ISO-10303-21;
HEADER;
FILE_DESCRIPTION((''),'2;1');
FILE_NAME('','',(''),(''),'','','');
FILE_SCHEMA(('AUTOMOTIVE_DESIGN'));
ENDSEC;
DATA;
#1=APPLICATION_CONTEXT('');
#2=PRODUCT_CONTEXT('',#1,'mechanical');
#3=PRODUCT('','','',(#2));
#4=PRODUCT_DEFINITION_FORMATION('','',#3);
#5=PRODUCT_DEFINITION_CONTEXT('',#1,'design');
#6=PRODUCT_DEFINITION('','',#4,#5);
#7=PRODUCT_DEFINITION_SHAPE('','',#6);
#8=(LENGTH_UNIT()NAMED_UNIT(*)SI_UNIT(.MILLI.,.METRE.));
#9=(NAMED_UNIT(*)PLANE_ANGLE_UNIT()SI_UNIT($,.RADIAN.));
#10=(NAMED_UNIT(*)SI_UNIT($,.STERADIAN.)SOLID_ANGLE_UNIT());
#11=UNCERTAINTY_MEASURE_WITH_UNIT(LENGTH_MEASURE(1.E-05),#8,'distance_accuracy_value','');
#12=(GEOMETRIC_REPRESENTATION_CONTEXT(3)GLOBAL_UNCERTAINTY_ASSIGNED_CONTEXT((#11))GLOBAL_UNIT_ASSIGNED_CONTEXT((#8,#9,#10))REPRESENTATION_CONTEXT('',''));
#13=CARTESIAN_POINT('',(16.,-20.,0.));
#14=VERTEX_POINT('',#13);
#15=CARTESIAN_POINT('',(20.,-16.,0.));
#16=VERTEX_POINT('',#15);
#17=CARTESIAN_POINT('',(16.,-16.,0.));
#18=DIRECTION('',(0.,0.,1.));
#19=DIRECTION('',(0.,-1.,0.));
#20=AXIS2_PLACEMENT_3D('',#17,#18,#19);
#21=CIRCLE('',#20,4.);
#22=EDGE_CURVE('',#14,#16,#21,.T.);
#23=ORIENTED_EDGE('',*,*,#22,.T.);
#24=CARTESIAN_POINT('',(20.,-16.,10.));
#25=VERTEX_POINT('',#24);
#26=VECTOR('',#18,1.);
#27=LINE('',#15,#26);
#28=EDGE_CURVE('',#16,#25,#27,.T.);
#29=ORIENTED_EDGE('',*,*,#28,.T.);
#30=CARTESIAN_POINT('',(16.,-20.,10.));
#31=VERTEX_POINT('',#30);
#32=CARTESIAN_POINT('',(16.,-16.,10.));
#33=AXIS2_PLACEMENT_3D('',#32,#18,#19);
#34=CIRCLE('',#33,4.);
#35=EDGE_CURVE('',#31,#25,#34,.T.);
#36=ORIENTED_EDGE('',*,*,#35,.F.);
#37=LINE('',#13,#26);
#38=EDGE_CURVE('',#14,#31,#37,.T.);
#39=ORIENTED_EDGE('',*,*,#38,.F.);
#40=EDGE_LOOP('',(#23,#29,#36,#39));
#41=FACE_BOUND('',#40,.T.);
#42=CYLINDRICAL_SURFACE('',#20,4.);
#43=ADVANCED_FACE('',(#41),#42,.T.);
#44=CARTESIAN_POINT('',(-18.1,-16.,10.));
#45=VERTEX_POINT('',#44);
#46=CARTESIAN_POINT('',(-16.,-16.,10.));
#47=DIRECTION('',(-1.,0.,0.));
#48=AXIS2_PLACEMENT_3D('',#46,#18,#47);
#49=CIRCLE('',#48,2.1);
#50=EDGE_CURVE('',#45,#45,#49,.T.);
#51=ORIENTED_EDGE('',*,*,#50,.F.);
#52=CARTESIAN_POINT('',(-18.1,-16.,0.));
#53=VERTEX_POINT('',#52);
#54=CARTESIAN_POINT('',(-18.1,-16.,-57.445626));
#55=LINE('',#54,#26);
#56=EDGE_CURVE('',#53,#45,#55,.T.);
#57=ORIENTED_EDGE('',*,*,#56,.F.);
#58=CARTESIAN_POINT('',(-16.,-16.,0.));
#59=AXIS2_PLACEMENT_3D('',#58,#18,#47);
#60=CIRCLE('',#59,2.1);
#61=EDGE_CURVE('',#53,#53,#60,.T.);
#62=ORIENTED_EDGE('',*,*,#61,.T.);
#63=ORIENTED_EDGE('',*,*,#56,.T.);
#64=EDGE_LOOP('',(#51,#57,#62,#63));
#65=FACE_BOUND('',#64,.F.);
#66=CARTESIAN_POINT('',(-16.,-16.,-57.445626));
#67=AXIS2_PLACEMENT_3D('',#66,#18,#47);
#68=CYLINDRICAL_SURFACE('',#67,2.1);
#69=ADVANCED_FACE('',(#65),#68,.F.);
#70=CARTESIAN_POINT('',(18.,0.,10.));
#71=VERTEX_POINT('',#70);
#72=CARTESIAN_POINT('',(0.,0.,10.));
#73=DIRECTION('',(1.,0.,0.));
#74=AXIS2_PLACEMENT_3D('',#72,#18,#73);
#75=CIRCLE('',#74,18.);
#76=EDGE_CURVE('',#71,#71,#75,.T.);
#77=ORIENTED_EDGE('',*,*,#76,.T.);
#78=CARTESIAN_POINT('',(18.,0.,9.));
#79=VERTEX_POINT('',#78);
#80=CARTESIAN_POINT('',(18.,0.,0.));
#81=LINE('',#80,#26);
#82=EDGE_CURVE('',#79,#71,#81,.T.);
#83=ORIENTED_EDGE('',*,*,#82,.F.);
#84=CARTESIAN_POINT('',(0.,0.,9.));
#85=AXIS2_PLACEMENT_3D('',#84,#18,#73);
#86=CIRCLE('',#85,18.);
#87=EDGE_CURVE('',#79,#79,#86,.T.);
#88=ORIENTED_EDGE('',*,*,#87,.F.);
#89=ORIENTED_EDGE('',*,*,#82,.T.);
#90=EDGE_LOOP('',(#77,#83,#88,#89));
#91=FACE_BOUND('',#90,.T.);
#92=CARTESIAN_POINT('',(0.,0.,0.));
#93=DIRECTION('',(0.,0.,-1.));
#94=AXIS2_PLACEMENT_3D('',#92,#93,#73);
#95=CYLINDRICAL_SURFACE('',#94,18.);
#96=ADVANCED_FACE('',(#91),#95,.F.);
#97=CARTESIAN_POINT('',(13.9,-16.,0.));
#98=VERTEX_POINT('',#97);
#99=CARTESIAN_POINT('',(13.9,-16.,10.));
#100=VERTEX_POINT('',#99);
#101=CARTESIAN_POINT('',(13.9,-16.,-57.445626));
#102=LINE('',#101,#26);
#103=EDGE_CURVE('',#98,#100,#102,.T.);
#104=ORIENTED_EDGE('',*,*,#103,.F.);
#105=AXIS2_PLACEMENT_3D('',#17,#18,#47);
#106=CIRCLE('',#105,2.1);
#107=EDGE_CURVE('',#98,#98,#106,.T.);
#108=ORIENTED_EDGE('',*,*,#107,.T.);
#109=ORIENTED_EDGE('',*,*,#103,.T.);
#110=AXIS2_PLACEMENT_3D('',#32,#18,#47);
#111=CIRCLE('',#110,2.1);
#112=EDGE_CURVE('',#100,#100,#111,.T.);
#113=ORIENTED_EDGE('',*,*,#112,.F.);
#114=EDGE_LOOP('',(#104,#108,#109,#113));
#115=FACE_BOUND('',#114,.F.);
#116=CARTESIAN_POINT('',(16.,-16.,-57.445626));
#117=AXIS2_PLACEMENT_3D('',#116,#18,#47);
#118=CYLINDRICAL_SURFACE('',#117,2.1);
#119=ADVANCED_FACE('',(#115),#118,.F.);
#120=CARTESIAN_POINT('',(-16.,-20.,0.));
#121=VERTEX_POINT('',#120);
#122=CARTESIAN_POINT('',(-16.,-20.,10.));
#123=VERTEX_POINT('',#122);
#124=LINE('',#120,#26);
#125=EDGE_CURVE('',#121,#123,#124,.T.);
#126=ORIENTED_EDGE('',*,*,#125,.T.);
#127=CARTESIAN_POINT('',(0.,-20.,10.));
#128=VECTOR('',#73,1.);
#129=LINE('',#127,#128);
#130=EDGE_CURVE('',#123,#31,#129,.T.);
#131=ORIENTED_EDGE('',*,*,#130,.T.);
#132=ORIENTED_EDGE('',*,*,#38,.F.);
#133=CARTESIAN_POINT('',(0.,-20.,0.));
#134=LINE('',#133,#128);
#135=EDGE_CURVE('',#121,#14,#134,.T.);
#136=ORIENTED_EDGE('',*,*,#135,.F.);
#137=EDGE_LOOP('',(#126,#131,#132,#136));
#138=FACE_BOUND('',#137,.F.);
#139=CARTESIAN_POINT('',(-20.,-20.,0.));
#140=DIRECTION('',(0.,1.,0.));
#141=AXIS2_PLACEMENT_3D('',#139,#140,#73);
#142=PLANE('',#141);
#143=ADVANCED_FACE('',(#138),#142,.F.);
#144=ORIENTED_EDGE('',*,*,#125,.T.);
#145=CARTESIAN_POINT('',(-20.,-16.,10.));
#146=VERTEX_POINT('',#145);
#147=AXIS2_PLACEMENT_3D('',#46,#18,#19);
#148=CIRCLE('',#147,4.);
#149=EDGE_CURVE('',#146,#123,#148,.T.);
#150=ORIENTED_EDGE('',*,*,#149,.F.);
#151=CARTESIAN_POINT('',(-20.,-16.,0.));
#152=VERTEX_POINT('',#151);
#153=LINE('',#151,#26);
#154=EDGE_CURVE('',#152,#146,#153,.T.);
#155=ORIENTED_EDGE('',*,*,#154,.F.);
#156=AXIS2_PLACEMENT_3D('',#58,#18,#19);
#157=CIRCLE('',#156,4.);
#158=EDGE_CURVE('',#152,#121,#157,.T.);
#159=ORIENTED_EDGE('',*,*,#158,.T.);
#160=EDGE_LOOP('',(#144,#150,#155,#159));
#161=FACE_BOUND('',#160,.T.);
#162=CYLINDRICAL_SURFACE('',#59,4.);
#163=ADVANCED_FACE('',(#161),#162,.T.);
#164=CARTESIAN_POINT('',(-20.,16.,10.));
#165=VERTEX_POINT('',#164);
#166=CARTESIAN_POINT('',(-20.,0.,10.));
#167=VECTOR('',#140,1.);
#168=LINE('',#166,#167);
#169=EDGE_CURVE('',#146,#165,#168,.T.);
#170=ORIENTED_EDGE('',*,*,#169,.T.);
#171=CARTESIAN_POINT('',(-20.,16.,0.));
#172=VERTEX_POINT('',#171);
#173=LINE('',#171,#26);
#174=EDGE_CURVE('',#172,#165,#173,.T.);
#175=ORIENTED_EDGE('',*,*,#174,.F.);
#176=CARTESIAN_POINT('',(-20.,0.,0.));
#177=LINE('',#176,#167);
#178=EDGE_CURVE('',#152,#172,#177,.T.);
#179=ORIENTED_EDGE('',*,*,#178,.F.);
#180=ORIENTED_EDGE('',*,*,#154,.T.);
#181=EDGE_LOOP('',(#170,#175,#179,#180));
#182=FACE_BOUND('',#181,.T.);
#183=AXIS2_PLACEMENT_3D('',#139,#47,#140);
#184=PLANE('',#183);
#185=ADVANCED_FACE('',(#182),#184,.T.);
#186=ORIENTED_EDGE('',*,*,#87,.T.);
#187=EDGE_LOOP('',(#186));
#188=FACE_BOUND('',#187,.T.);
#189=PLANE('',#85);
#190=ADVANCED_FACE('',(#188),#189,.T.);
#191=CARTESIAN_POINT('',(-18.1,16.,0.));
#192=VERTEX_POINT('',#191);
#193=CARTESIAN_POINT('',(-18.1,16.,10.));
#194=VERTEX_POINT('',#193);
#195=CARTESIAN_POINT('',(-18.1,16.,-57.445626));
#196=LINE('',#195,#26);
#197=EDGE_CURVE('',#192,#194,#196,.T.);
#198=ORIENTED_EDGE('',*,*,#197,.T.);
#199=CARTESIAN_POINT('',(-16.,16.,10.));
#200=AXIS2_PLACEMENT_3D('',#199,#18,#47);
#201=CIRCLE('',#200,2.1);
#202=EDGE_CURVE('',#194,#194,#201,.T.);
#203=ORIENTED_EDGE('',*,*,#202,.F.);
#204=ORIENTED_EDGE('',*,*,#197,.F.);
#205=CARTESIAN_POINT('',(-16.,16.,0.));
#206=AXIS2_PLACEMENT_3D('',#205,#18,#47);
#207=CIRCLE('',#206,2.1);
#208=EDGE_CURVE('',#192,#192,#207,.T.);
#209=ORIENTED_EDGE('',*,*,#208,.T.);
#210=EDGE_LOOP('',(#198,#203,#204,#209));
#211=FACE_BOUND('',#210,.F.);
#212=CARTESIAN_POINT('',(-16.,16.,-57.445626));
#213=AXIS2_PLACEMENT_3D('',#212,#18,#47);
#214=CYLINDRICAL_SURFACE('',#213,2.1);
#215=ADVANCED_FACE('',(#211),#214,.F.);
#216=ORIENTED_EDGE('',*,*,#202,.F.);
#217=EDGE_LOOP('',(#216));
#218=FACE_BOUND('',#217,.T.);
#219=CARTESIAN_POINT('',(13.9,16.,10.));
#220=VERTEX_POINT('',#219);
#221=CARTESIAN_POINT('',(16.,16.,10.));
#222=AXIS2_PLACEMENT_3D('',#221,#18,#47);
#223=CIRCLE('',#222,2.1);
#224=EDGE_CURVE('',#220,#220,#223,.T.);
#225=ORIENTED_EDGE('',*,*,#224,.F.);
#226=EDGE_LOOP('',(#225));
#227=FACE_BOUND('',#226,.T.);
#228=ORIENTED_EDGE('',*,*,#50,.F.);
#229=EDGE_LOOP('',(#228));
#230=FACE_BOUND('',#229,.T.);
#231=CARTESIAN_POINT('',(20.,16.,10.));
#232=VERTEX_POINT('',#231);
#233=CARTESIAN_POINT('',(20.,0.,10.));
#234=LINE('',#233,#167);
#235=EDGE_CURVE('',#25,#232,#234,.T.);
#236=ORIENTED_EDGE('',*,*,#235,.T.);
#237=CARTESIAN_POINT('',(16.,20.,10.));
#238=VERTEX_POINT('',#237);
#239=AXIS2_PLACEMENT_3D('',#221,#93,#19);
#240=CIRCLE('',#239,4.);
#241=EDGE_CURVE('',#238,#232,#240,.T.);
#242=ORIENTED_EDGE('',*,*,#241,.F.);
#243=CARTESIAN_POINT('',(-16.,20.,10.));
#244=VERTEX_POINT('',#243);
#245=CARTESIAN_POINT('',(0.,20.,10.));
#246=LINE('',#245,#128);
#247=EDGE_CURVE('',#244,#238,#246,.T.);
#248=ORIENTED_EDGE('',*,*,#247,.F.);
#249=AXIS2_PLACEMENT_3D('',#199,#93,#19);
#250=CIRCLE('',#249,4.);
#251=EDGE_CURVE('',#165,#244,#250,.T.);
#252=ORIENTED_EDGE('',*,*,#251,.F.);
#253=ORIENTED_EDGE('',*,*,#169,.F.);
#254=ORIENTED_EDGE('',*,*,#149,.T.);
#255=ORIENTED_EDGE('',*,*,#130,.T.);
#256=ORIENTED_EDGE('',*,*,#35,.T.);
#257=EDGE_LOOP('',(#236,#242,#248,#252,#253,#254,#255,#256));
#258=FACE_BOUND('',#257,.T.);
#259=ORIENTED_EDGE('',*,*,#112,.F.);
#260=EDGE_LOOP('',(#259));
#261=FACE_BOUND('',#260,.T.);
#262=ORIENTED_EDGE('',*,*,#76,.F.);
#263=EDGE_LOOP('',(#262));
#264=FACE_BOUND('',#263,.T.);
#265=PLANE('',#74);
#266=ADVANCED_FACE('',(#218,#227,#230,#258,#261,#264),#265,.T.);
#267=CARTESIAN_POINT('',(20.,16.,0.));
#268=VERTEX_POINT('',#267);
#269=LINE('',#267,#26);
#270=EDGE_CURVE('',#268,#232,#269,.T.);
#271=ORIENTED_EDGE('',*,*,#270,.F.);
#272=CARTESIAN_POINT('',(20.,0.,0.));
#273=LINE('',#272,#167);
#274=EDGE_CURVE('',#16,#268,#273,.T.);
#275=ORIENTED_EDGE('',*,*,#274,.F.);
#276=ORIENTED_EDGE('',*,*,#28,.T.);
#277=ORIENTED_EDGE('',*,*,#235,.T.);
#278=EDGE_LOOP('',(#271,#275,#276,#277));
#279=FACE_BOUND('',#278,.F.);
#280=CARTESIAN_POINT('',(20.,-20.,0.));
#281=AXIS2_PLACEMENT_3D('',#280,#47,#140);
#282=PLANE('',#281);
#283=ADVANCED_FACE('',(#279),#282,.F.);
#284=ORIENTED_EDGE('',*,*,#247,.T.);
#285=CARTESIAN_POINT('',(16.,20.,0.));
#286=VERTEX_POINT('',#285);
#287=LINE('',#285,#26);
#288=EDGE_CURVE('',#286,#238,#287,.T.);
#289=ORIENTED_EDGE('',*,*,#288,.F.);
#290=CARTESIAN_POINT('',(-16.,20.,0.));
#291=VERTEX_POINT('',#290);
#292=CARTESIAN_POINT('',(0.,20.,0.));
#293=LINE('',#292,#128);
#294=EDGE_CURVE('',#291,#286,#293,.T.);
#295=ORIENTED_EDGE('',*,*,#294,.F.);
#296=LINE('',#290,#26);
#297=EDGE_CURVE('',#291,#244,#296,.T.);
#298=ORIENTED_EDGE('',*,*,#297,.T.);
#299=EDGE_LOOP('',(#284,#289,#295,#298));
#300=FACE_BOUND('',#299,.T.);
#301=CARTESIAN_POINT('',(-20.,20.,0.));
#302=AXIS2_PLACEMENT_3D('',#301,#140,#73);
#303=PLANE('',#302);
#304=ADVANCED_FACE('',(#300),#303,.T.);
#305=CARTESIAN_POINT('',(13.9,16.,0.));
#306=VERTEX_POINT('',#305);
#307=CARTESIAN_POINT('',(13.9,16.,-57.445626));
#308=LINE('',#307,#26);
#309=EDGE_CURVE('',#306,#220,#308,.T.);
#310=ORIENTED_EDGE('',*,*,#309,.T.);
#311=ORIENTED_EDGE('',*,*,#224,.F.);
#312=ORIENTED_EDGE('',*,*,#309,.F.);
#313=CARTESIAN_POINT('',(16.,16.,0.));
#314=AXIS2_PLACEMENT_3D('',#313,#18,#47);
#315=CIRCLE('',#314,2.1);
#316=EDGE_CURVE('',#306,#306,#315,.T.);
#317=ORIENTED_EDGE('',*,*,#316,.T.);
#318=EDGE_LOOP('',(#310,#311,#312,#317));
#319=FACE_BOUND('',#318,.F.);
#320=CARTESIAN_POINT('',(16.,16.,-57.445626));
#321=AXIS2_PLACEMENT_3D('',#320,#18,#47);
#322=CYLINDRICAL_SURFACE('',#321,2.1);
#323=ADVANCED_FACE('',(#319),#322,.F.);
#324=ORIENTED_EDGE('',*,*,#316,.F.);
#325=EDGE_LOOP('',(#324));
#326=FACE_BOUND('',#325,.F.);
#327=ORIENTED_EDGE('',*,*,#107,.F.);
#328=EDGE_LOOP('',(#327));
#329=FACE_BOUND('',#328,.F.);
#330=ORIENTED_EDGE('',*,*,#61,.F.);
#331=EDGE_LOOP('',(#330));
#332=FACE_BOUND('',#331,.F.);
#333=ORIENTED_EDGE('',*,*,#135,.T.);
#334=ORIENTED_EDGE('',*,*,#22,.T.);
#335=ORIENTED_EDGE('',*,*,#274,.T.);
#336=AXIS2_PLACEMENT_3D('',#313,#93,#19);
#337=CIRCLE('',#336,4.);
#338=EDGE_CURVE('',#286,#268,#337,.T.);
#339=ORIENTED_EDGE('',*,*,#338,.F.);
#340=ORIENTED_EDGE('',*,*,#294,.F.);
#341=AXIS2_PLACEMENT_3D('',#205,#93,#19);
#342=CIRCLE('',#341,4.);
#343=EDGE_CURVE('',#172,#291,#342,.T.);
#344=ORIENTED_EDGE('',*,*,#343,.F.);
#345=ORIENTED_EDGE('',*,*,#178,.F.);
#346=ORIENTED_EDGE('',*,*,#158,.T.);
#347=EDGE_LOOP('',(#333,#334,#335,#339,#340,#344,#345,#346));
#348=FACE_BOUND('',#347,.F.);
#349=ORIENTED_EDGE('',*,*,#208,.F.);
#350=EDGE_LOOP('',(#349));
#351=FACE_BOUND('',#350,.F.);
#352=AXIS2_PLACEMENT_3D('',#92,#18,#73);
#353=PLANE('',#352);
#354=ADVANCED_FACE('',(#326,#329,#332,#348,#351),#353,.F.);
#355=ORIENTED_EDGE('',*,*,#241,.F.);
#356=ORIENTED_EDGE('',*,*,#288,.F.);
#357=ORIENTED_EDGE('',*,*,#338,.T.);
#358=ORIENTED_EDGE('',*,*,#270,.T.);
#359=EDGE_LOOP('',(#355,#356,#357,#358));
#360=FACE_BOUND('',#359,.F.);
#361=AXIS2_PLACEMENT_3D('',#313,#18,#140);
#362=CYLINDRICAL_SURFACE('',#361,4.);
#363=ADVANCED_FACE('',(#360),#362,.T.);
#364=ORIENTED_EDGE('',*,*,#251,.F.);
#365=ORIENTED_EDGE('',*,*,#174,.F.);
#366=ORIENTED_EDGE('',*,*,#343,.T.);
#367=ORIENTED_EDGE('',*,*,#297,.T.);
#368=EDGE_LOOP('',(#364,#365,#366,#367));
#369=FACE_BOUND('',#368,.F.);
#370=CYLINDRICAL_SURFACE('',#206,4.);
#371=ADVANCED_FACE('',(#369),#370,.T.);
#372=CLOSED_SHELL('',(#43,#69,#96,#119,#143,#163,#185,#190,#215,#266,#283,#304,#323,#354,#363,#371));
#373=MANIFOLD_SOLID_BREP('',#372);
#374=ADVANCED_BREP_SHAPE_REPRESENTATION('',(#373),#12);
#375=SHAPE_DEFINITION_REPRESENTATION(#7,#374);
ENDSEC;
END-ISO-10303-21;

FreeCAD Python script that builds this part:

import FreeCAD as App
import Part
import Sketcher

V = App.Vector


def edges_at(feature, points):
    """Names of the edges that pass closest to the given points."""
    edges = feature.Shape.Edges
    near = lambda p: min(range(len(edges)), key=lambda i: edges[i].distToShape(Part.Vertex(*p))[0])
    return sorted({f"Edge{near(p) + 1}" for p in points})


def add_polygon(sketch, points):
    """Adds a closed chain of lines whose ends are joined by coincident constraints."""
    first, n = sketch.GeometryCount, len(points)
    for a, b in zip(points, points[1:] + points[:1]):
        sketch.addGeometry(Part.LineSegment(App.Vector(*a, 0), App.Vector(*b, 0)), False)
    for i in range(n):
        sketch.addConstraint(Sketcher.Constraint("Coincident", first + i, 2, first + (i + 1) % n, 1))

doc = App.newDocument("Part")
body = doc.addObject("PartDesign::Body", "Body")

sketch1 = doc.addObject("Sketcher::SketchObject", "Sketch")
body.addObject(sketch1)
sketch1.AttachmentSupport = (doc.XY_Plane, [""])
sketch1.MapMode = "FlatFace"
add_polygon(sketch1, [(-20, 20), (-20, -20), (20, -20), (20, 20)])
sketch1.addGeometry(Part.Circle(V(0, 0, 0), V(0, 0, 1), 18), False)
sketch1.addConstraint([
    Sketcher.Constraint("Vertical", 0),
    Sketcher.Constraint("Horizontal", 1),
    Sketcher.Constraint("Vertical", 2),
    Sketcher.Constraint("Horizontal", 3),
    Sketcher.Constraint("Coincident", 4, 3, -1, 1),
    Sketcher.Constraint("Symmetric", 0, 2, 2, 2, -1, 1),
    Sketcher.Constraint("Equal", 3, 0),
    Sketcher.Constraint("Diameter", 4, 36.0),
    Sketcher.Constraint("DistanceX", 1, 1, 1, 2, 40.0),
])
pad1 = doc.addObject("PartDesign::Pad", "Pad")
body.addObject(pad1)
pad1.Profile = sketch1
pad1.Length = 10

sketch2 = doc.addObject("Sketcher::SketchObject", "Sketch001")
body.addObject(sketch2)
sketch2.AttachmentSupport = (doc.XY_Plane, [""])
sketch2.MapMode = "FlatFace"
sketch2.addGeometry(Part.Circle(V(0, 0, 0), V(0, 0, 1), 18), False)
sketch2.addConstraint([
    Sketcher.Constraint("Coincident", 0, 3, -1, 1),
    Sketcher.Constraint("Diameter", 0, 36.0),
])
pad2 = doc.addObject("PartDesign::Pad", "Pad001")
body.addObject(pad2)
pad2.Profile = sketch2
pad2.Length = 9

sketch3 = doc.addObject("Sketcher::SketchObject", "Sketch002")
body.addObject(sketch3)
sketch3.AttachmentSupport = (doc.XY_Plane, [""])
sketch3.MapMode = "FlatFace"
sketch3.addGeometry([
    Part.Circle(V(-16, -16, 0), V(0, 0, 1), 2.1),
    Part.Circle(V(-16, 16, 0), V(0, 0, 1), 2.1),
    Part.Circle(V(16, 16, 0), V(0, 0, 1), 2.1),
    Part.Circle(V(16, -16, 0), V(0, 0, 1), 2.1),
], False)
sketch3.addConstraint([
    Sketcher.Constraint("Equal", 0, 1),
    Sketcher.Constraint("Equal", 1, 2),
    Sketcher.Constraint("Equal", 2, 3),
    Sketcher.Constraint("Symmetric", 0, 3, 2, 3, -1, 1),
    Sketcher.Constraint("Symmetric", 1, 3, 3, 3, -1, 1),
    Sketcher.Constraint("Symmetric", 1, 3, 2, 3, -2),
    Sketcher.Constraint("Diameter", 0, 4.2),
    Sketcher.Constraint("DistanceX", 0, 3, -1, 1, 16.0),
    Sketcher.Constraint("DistanceY", 0, 3, -1, 1, 16.0),
])
doc.recompute()
hole = doc.addObject("PartDesign::Hole", "Hole")
body.addObject(hole)
hole.Profile = sketch3
hole.ThreadType = "None"
hole.Diameter = 4.2
hole.DepthType = "ThroughAll"
hole.Reversed = True
doc.recompute()

fillet = doc.addObject("PartDesign::Fillet", "Fillet")
body.addObject(fillet)
fillet.Base = (hole, edges_at(hole, [
    (-20, -20, 5),
    (-20, 20, 5),
    (20, 20, 5),
    (20, -20, 5),
]))
fillet.Radius = 4

doc.recompute()
